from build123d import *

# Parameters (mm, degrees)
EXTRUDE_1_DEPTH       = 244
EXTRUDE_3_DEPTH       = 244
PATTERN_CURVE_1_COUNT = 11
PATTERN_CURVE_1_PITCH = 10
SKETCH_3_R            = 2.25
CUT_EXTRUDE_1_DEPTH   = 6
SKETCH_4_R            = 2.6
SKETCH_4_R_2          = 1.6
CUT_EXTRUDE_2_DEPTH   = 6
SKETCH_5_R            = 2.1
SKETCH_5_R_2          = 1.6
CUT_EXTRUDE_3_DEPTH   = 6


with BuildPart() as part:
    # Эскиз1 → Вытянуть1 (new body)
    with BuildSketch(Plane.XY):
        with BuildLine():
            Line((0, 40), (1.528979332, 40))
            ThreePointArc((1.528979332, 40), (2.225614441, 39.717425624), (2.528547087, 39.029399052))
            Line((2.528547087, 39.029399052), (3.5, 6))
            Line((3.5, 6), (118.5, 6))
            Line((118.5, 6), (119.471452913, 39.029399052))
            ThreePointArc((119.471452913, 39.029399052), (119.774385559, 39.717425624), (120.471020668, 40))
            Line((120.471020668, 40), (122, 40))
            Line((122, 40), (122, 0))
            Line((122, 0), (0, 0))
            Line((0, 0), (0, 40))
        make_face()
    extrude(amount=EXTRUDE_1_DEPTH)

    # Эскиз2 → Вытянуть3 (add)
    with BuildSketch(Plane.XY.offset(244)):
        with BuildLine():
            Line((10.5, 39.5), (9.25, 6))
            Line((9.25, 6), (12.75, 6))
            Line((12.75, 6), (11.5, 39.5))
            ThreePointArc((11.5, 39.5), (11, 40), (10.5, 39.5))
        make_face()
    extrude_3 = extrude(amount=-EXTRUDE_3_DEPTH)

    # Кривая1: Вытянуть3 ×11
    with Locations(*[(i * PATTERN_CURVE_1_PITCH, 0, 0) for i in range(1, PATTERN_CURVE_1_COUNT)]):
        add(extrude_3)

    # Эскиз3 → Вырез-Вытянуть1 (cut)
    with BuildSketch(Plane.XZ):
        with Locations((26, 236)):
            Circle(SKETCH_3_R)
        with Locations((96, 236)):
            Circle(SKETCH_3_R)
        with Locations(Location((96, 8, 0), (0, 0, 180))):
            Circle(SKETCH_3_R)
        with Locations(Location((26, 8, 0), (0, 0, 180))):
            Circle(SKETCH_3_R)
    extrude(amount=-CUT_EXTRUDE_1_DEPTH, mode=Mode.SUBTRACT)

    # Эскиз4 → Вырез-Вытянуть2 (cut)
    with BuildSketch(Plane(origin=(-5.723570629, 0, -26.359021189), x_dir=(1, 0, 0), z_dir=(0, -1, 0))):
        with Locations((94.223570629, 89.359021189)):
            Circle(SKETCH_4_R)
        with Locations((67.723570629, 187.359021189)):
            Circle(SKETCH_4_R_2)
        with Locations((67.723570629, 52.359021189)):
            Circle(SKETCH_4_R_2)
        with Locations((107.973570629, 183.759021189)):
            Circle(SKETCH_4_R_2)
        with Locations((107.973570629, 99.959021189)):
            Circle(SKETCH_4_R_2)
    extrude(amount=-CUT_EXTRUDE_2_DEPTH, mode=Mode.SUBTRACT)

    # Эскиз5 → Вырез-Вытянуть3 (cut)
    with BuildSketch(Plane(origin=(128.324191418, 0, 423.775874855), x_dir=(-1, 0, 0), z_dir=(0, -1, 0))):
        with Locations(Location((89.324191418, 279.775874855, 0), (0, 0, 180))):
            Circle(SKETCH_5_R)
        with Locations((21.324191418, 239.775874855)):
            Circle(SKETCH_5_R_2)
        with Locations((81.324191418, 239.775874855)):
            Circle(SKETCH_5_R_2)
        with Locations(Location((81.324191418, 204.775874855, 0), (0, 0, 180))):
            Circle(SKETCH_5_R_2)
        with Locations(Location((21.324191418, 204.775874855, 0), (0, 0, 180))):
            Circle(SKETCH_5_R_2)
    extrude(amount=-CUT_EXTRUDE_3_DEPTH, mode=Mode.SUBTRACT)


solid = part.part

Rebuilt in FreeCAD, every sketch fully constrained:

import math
import FreeCAD as App
import Part
import Sketcher
from FreeCAD import Vector

doc = App.newDocument("Part")
params = doc.addObject("Spreadsheet::Sheet", "Params")
for row, (alias, value) in enumerate([
    ("sketch1_radius", "1 mm"),
    ("sketch1_width", "122 mm"),
    ("sketch1_width2", "115 mm"),
    ("sketch1_height", "40 mm"),
    ("pad1_length", "244 mm"),
    ("sketch2_radius", "0.5 mm"),
    ("sketch2_width", "3.5 mm"),
    ("pad2_length", "244 mm"),
    ("linearpattern_pitch", "10 mm"),
    ("sketch3_diameter", "4.5 mm"),
    ("pocket1_length", "6 mm"),
    ("sketch4_diameter", "5.2 mm"),
    ("sketch4_diameter2", "3.2 mm"),
    ("pocket2_length", "6 mm"),
    ("sketch5_diameter", "4.2 mm"),
    ("sketch5_diameter2", "3.2 mm"),
    ("pocket3_length", "6 mm"),
], start=1):
    params.set(f"A{row}", alias)
    params.set(f"B{row}", "=" + value)
    params.setAlias(f"B{row}", alias)

body = doc.addObject("PartDesign::Body", "Body")

sketch1 = body.newObject("Sketcher::SketchObject", "Sketch")
sketch1.AttachmentSupport = (doc.getObject("XY_Plane"), [""])
sketch1.MapMode = "FlatFace"
sketch1.addGeometry([
    Part.LineSegment(Vector(1.5, 40, 0), Vector(0, 40, 0)),
    Part.LineSegment(Vector(0, 40, 0), Vector(0, 0, 0)),
    Part.LineSegment(Vector(0, 0, 0), Vector(122, 0, 0)),
    Part.LineSegment(Vector(122, 0, 0), Vector(122, 40, 0)),
    Part.LineSegment(Vector(122, 40, 0), Vector(120.5, 40, 0)),
    Part.ArcOfCircle(Part.Circle(Vector(120.5, 39, 0), Vector(0, 0, 1), 1), math.radians(90), math.radians(178)),
    Part.LineSegment(Vector(119.5, 39, 0), Vector(118.5, 6, 0)),
    Part.LineSegment(Vector(118.5, 6, 0), Vector(3.5, 6, 0)),
    Part.LineSegment(Vector(3.5, 6, 0), Vector(2.5, 39, 0)),
    Part.ArcOfCircle(Part.Circle(Vector(1.5, 39, 0), Vector(0, 0, 1), 1), math.radians(2), math.radians(90)),
], False)
sketch1.addConstraint([
    Sketcher.Constraint("Coincident", 0, 2, 1, 1),
    Sketcher.Constraint("Coincident", 1, 2, 2, 1),
    Sketcher.Constraint("Coincident", 2, 2, 3, 1),
    Sketcher.Constraint("Coincident", 3, 2, 4, 1),
    Sketcher.Constraint("Tangent", 4, 2, 5, 1),
    Sketcher.Constraint("Tangent", 5, 2, 6, 1),
    Sketcher.Constraint("Coincident", 6, 2, 7, 1),
    Sketcher.Constraint("Coincident", 7, 2, 8, 1),
    Sketcher.Constraint("Tangent", 8, 2, 9, 1),
    Sketcher.Constraint("Tangent", 9, 2, 0, 1),
    Sketcher.Constraint("Horizontal", 0),
    Sketcher.Constraint("Vertical", 1),
    Sketcher.Constraint("Horizontal", 2),
    Sketcher.Constraint("Vertical", 3),
    Sketcher.Constraint("Horizontal", 4),
    Sketcher.Constraint("Horizontal", 7),
    Sketcher.Constraint("Coincident", 1, 2, -1, 1),
    Sketcher.Constraint("Equal", 5, 9),
    Sketcher.Constraint("Horizontal", 5, 3, 9, 3),
    Sketcher.Constraint("Horizontal", 5, 2, 8, 2),
    Sketcher.Constraint("Equal", 0, 4),
    Sketcher.Constraint("Radius", 5, 1.0),
    Sketcher.Constraint("DistanceX", 2, 1, 2, 2, 122.0),
    Sketcher.Constraint("DistanceX", 7, 2, 7, 1, 115.0),
    Sketcher.Constraint("DistanceY", 1, 2, 1, 1, 40.0),
    Sketcher.Constraint("DistanceY", -1, 1, 6, 2, 6.0),
    Sketcher.Constraint("DistanceX", 0, 2, 0, 1, 1.528979),
])
sketch1.setExpression("Constraints[21]", "Params.sketch1_radius")
sketch1.setExpression("Constraints[22]", "Params.sketch1_width")
sketch1.setExpression("Constraints[23]", "Params.sketch1_width2")
sketch1.setExpression("Constraints[24]", "Params.sketch1_height")
pad1 = body.newObject("PartDesign::Pad", "Pad")
pad1.Profile = sketch1
pad1.setExpression("Length", "Params.pad1_length")

sketch2 = body.newObject("Sketcher::SketchObject", "Sketch001")
sketch2.AttachmentSupport = (doc.getObject("XY_Plane"), [""])
sketch2.MapMode = "FlatFace"
sketch2.AttachmentOffset = App.Placement(Vector(0, 0, 244), App.Rotation())
sketch2.addGeometry([
    Part.LineSegment(Vector(10.5, 39.5, 0), Vector(9.2, 6, 0)),
    Part.LineSegment(Vector(9.2, 6, 0), Vector(12.8, 6, 0)),
    Part.LineSegment(Vector(12.8, 6, 0), Vector(11.5, 39.5, 0)),
    Part.ArcOfCircle(Part.Circle(Vector(11, 39.5, 0), Vector(0, 0, 1), 0.5), math.radians(0), math.radians(180)),
], False)
sketch2.addConstraint([
    Sketcher.Constraint("Coincident", 0, 2, 1, 1),
    Sketcher.Constraint("Coincident", 1, 2, 2, 1),
    Sketcher.Constraint("Coincident", 2, 2, 3, 1),
    Sketcher.Constraint("Coincident", 3, 2, 0, 1),
    Sketcher.Constraint("Horizontal", 1),
    Sketcher.Constraint("Horizontal", 3, 3, 2, 2),
    Sketcher.Constraint("Horizontal", 2, 2, 3, 2),
    Sketcher.Constraint("Equal", 0, 2),
    Sketcher.Constraint("Radius", 3, 0.5),
    Sketcher.Constraint("DistanceX", 1, 1, 1, 2, 3.5),
    Sketcher.Constraint("DistanceX", -1, 1, 3, 3, 11.0),
    Sketcher.Constraint("DistanceY", -1, 1, 0, 2, 6.0),
    Sketcher.Constraint("DistanceY", -1, 1, 3, 3, 39.5),
])
sketch2.setExpression("Constraints[8]", "Params.sketch2_radius")
sketch2.setExpression("Constraints[9]", "Params.sketch2_width")
pad2 = body.newObject("PartDesign::Pad", "Pad001")
pad2.Profile = sketch2
pad2.setExpression("Length", "Params.pad2_length")
pad2.Reversed = True
doc.recompute()

linearpattern = body.newObject("PartDesign::LinearPattern", "LinearPattern")
linearpattern.Originals = [pad2]
linearpattern.Direction = (doc.getObject("X_Axis"), [""])
linearpattern.Mode = "offset"
linearpattern.setExpression("Offset", "Params.linearpattern_pitch")
linearpattern.Occurrences = 11
body.Tip = linearpattern

sketch3 = body.newObject("Sketcher::SketchObject", "Sketch002")
sketch3.AttachmentSupport = (doc.getObject("XZ_Plane"), [""])
sketch3.MapMode = "FlatFace"
sketch3.addGeometry([
    Part.Circle(Vector(26, 236, 0), Vector(0, 0, 1), 2.2),
    Part.Circle(Vector(96, 236, 0), Vector(0, 0, 1), 2.2),
    Part.Circle(Vector(96, 8, 0), Vector(0, 0, 1), 2.2),
    Part.Circle(Vector(26, 8, 0), Vector(0, 0, 1), 2.2),
], False)
sketch3.addConstraint([
    Sketcher.Constraint("Equal", 0, 1),
    Sketcher.Constraint("Equal", 1, 2),
    Sketcher.Constraint("Equal", 2, 3),
    Sketcher.Constraint("Horizontal", 0, 3, 1, 3),
    Sketcher.Constraint("Horizontal", 2, 3, 3, 3),
    Sketcher.Constraint("Vertical", 1, 3, 2, 3),
    Sketcher.Constraint("Vertical", 0, 3, 3, 3),
    Sketcher.Constraint("Diameter", 0, 4.5),
    Sketcher.Constraint("DistanceX", -1, 1, 0, 3, 26.0),
    Sketcher.Constraint("DistanceY", -1, 1, 0, 3, 236.0),
    Sketcher.Constraint("DistanceX", -1, 1, 1, 3, 96.0),
    Sketcher.Constraint("DistanceY", -1, 1, 2, 3, 8.0),
])
sketch3.setExpression("Constraints[7]", "Params.sketch3_diameter")
pocket1 = body.newObject("PartDesign::Pocket", "Pocket")
pocket1.Profile = sketch3
pocket1.setExpression("Length", "Params.pocket1_length")

sketch4 = body.newObject("Sketcher::SketchObject", "Sketch003")
sketch4.AttachmentSupport = (doc.getObject("XZ_Plane"), [""])
sketch4.MapMode = "FlatFace"
sketch4.addGeometry([
    Part.Circle(Vector(88.5, 63, 0), Vector(0, 0, 1), 2.6),
    Part.Circle(Vector(62, 161, 0), Vector(0, 0, 1), 1.6),
    Part.Circle(Vector(62, 26, 0), Vector(0, 0, 1), 1.6),
    Part.Circle(Vector(102.2, 157.4, 0), Vector(0, 0, 1), 1.6),
    Part.Circle(Vector(102.2, 73.6, 0), Vector(0, 0, 1), 1.6),
], False)
sketch4.addConstraint([
    Sketcher.Constraint("Equal", 1, 2),
    Sketcher.Constraint("Equal", 2, 3),
    Sketcher.Constraint("Equal", 3, 4),
    Sketcher.Constraint("Vertical", 1, 3, 2, 3),
    Sketcher.Constraint("Vertical", 3, 3, 4, 3),
    Sketcher.Constraint("Diameter", 0, 5.2),
    Sketcher.Constraint("Diameter", 1, 3.2),
    Sketcher.Constraint("DistanceY", -1, 1, 0, 3, 63.0),
    Sketcher.Constraint("DistanceX", -1, 1, 1, 3, 62.0),
    Sketcher.Constraint("DistanceY", -1, 1, 1, 3, 161.0),
    Sketcher.Constraint("DistanceY", -1, 1, 2, 3, 26.0),
    Sketcher.Constraint("DistanceX", -1, 1, 0, 3, 88.5),
    Sketcher.Constraint("DistanceY", -1, 1, 3, 3, 157.4),
    Sketcher.Constraint("DistanceY", -1, 1, 4, 3, 73.6),
    Sketcher.Constraint("DistanceX", -1, 1, 3, 3, 102.25),
])
sketch4.setExpression("Constraints[5]", "Params.sketch4_diameter")
sketch4.setExpression("Constraints[6]", "Params.sketch4_diameter2")
pocket2 = body.newObject("PartDesign::Pocket", "Pocket001")
pocket2.Profile = sketch4
pocket2.setExpression("Length", "Params.pocket2_length")

sketch5 = body.newObject("Sketcher::SketchObject", "Sketch004")
sketch5.AttachmentSupport = (doc.getObject("XZ_Plane"), [""])
sketch5.MapMode = "FlatFace"
sketch5.addGeometry([
    Part.Circle(Vector(39, 144, 0), Vector(0, 0, 1), 2.1),
    Part.Circle(Vector(107, 184, 0), Vector(0, 0, 1), 1.6),
    Part.Circle(Vector(47, 184, 0), Vector(0, 0, 1), 1.6),
    Part.Circle(Vector(47, 219, 0), Vector(0, 0, 1), 1.6),
    Part.Circle(Vector(107, 219, 0), Vector(0, 0, 1), 1.6),
], False)
sketch5.addConstraint([
    Sketcher.Constraint("Equal", 1, 2),
    Sketcher.Constraint("Equal", 2, 3),
    Sketcher.Constraint("Equal", 3, 4),
    Sketcher.Constraint("Horizontal", 1, 3, 2, 3),
    Sketcher.Constraint("Horizontal", 3, 3, 4, 3),
    Sketcher.Constraint("Vertical", 2, 3, 3, 3),
    Sketcher.Constraint("Vertical", 1, 3, 4, 3),
    Sketcher.Constraint("Diameter", 0, 4.2),
    Sketcher.Constraint("Diameter", 1, 3.2),
    Sketcher.Constraint("DistanceX", -1, 1, 0, 3, 39.0),
    Sketcher.Constraint("DistanceY", -1, 1, 0, 3, 144.0),
    Sketcher.Constraint("DistanceX", -1, 1, 1, 3, 107.0),
    Sketcher.Constraint("DistanceY", -1, 1, 1, 3, 184.0),
    Sketcher.Constraint("DistanceX", -1, 1, 2, 3, 47.0),
    Sketcher.Constraint("DistanceY", -1, 1, 3, 3, 219.0),
])
sketch5.setExpression("Constraints[7]", "Params.sketch5_diameter")
sketch5.setExpression("Constraints[8]", "Params.sketch5_diameter2")
pocket3 = body.newObject("PartDesign::Pocket", "Pocket002")
pocket3.Profile = sketch5
pocket3.setExpression("Length", "Params.pocket3_length")

doc.recompute()
